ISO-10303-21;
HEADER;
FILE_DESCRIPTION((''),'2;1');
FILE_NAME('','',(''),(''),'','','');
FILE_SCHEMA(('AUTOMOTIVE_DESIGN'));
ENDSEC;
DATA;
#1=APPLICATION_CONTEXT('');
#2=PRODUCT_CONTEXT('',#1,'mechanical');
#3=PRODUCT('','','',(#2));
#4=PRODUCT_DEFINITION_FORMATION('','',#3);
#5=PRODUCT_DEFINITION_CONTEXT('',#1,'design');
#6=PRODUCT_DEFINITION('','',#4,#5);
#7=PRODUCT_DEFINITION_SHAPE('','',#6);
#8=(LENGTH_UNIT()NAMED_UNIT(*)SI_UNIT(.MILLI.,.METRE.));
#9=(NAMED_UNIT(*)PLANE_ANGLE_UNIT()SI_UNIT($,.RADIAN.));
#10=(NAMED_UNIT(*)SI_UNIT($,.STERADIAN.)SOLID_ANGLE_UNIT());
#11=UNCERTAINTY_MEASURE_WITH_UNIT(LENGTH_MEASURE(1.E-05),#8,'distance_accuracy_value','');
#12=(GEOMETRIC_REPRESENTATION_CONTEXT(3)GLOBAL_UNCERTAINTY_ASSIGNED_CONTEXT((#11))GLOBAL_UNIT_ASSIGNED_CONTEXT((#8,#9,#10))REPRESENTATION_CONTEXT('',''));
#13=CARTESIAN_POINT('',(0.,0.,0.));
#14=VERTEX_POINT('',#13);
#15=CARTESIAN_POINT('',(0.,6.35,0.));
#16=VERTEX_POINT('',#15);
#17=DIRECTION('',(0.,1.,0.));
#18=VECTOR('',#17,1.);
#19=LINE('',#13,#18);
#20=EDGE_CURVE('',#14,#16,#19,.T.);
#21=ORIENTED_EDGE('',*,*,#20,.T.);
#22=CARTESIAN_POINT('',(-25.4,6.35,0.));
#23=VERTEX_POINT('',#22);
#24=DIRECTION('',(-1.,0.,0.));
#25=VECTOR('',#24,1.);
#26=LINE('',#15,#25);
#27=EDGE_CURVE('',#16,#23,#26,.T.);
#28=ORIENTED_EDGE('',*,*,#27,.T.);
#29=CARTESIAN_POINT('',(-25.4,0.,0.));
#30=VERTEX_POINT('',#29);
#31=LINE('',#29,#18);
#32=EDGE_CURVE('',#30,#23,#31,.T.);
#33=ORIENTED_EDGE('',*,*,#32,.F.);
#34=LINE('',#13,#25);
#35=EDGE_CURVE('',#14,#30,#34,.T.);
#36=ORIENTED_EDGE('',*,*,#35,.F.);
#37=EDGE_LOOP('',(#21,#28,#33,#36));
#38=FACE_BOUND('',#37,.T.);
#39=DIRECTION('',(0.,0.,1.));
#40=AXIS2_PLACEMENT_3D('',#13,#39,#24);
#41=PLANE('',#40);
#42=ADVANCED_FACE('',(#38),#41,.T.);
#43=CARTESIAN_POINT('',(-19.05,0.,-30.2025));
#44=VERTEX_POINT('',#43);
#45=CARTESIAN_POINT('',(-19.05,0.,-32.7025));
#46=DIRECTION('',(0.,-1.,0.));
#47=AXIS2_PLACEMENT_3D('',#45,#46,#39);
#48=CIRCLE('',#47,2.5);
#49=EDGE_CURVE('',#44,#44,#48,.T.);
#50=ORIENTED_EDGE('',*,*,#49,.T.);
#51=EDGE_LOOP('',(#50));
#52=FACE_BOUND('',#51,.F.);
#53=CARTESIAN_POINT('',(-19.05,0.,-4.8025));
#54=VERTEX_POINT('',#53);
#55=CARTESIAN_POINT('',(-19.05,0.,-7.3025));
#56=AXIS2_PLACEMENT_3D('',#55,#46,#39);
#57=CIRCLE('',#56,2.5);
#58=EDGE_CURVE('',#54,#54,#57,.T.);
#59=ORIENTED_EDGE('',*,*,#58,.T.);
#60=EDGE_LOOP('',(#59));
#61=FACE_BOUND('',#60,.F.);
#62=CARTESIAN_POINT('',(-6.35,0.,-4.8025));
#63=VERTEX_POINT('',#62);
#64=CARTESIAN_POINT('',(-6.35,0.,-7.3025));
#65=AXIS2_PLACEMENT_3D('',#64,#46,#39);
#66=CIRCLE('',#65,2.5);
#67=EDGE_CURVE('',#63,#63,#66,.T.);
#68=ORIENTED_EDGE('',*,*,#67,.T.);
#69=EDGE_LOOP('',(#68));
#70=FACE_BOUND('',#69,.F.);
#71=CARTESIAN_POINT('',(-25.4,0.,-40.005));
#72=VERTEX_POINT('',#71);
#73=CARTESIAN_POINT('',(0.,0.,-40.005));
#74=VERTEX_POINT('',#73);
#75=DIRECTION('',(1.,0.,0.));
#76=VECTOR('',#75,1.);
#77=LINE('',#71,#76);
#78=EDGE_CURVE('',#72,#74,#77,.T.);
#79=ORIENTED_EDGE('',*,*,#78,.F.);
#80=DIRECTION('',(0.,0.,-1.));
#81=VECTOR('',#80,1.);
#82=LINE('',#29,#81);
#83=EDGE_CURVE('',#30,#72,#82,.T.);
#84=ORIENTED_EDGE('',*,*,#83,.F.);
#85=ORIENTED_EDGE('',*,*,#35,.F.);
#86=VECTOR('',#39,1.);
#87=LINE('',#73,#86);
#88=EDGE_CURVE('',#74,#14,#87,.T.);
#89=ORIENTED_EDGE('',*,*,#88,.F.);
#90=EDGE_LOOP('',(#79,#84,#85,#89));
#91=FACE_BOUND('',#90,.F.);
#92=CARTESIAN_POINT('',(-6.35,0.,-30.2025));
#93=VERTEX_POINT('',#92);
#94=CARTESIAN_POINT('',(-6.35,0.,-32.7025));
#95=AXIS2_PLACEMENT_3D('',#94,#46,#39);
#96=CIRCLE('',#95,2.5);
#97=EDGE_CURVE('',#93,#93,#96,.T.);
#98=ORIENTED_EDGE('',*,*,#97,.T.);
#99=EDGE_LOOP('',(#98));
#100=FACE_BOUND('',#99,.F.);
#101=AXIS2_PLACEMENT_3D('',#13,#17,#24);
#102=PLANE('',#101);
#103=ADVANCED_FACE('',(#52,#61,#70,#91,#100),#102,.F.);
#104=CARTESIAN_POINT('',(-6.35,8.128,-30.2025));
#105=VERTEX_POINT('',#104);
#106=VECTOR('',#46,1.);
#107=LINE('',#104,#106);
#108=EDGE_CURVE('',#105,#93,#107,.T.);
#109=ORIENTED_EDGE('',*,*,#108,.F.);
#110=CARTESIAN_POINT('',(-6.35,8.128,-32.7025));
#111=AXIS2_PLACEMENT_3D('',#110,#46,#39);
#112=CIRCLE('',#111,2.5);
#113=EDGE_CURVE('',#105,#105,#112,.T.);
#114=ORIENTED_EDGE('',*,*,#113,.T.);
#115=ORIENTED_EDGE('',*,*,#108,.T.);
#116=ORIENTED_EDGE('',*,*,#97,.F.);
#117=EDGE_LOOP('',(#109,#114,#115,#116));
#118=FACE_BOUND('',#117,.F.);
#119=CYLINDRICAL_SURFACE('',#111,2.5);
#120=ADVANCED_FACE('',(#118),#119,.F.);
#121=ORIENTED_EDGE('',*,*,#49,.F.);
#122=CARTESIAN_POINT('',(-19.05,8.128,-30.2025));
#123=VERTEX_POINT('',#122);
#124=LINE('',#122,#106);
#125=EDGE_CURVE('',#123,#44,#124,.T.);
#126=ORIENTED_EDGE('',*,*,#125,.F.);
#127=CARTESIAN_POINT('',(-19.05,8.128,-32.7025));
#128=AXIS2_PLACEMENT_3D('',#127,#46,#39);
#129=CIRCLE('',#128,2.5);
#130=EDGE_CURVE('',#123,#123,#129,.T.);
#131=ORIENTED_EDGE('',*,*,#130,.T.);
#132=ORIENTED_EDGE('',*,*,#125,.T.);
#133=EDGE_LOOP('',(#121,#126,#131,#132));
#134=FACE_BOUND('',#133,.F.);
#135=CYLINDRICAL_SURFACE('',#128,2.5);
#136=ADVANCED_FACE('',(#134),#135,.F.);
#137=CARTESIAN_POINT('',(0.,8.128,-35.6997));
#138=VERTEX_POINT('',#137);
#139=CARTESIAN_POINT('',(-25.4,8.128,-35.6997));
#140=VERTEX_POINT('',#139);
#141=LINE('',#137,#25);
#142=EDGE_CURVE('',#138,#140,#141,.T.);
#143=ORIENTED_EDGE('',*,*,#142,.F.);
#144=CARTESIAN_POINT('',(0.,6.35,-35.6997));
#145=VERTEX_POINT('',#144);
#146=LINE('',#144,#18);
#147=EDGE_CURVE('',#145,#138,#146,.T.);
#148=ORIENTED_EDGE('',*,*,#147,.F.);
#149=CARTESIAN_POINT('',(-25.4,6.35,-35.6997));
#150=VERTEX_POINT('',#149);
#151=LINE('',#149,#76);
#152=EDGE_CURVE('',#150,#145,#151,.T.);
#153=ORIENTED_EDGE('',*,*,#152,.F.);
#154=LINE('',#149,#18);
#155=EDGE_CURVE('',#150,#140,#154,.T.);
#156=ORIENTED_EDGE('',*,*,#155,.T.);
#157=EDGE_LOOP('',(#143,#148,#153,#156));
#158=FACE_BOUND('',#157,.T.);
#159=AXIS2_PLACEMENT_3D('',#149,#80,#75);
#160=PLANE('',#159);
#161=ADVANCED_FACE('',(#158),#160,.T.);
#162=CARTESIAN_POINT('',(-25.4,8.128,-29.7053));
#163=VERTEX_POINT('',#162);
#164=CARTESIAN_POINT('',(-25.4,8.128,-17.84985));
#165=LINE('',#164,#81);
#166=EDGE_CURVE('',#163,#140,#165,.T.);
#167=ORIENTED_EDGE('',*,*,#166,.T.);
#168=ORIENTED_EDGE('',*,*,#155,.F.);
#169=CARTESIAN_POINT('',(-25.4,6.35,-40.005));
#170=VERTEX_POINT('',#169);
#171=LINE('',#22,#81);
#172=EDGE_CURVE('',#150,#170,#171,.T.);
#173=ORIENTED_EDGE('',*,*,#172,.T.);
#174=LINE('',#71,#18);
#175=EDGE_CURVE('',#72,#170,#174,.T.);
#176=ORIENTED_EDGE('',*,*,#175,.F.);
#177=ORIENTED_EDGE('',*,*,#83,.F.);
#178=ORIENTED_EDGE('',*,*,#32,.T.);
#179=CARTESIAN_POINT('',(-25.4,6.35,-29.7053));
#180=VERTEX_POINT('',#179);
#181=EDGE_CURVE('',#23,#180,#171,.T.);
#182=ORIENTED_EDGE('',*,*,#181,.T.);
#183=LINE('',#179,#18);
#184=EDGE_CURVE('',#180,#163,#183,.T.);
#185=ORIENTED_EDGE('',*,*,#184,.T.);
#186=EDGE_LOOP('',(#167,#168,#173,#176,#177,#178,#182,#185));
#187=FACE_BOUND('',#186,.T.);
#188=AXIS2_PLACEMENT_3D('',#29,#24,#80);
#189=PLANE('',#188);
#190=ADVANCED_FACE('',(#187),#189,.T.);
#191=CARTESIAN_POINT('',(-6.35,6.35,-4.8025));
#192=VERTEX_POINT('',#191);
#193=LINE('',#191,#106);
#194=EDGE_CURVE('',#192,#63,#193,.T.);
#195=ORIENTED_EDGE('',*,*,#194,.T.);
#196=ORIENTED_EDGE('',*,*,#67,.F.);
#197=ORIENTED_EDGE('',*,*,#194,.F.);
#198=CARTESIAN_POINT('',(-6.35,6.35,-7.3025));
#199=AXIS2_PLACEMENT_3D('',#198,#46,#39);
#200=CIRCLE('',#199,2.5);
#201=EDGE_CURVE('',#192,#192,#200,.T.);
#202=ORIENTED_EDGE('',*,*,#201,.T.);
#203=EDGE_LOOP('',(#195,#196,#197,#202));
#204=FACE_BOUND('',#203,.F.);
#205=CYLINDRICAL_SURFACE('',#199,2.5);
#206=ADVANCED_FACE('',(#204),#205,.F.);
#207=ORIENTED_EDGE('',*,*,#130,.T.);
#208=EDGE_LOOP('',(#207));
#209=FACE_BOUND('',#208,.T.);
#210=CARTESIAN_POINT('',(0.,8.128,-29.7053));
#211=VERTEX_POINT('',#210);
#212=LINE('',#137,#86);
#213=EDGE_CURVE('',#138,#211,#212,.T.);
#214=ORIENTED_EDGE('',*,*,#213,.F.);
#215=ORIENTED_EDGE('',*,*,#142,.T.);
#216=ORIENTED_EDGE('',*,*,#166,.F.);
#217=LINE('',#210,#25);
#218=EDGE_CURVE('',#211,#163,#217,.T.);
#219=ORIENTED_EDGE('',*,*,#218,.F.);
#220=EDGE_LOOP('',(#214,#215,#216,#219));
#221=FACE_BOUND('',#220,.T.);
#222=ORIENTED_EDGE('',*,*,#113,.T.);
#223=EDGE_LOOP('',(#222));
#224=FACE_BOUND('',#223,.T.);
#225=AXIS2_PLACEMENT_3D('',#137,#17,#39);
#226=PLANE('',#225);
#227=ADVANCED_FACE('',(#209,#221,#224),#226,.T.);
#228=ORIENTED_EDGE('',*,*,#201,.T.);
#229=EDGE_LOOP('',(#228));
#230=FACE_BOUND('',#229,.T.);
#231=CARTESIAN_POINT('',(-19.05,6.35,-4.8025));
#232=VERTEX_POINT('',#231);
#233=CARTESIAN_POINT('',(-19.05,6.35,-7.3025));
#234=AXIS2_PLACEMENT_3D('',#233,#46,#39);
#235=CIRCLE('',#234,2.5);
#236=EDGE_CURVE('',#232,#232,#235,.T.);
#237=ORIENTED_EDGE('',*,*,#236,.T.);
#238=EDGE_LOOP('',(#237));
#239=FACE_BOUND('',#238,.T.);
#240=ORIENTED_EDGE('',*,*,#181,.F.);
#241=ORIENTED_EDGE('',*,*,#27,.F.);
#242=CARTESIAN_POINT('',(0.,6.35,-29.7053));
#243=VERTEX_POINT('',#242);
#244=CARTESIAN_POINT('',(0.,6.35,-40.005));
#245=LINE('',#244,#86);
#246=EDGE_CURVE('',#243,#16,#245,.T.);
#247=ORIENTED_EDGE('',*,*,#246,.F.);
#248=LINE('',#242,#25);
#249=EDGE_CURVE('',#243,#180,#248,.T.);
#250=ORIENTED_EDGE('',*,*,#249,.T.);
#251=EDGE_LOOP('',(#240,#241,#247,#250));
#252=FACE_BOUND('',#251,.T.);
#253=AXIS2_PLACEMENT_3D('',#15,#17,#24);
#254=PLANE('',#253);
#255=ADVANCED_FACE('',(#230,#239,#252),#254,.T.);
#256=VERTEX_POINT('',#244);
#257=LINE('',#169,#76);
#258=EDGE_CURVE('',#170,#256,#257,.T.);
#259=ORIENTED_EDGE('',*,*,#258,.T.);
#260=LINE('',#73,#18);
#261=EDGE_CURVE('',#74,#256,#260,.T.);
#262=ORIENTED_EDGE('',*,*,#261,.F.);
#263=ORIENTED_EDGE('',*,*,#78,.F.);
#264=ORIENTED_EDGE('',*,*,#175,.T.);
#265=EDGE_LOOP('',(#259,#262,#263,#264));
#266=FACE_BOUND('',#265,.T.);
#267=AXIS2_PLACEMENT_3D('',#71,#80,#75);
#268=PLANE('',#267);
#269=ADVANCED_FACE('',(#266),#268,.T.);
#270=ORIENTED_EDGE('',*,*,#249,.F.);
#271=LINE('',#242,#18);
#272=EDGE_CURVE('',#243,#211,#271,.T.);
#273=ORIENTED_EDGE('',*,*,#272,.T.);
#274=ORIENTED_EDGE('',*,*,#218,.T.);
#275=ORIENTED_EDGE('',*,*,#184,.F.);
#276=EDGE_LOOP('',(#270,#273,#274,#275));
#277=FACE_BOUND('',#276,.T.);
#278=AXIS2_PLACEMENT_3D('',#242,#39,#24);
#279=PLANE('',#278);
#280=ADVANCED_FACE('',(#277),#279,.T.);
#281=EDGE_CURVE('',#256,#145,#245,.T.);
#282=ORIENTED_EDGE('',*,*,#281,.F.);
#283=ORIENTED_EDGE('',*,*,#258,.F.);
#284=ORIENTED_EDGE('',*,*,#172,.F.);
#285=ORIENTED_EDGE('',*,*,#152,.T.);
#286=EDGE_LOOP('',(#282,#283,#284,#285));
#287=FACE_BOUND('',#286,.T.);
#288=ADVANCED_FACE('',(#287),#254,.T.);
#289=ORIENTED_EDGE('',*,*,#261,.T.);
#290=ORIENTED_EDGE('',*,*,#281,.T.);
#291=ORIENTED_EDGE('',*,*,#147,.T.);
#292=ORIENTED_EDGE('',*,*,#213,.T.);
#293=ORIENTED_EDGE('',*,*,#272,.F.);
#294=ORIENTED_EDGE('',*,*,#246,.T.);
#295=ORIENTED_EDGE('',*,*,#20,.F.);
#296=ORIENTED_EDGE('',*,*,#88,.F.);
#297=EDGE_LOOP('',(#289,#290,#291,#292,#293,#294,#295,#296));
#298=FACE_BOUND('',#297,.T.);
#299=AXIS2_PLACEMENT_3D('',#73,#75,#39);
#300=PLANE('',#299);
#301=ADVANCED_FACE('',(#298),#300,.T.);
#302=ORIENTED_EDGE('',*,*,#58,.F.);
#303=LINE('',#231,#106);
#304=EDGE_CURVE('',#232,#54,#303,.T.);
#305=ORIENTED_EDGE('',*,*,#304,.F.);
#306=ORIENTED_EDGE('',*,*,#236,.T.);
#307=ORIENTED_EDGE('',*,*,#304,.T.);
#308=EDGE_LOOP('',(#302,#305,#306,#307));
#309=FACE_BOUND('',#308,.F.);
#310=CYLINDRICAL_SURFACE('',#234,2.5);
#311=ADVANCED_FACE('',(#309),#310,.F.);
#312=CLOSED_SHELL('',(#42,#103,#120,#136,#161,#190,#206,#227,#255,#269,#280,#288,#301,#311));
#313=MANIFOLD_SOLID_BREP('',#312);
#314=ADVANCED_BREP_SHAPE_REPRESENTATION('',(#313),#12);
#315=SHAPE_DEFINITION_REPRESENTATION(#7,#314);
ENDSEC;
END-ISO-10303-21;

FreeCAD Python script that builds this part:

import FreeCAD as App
import Part
import Sketcher
from FreeCAD import Vector
Q = App.Units.Quantity

doc = App.newDocument("Part")
body = doc.addObject("PartDesign::Body", "Body")

sketch1 = body.newObject("Sketcher::SketchObject", "Sketch")
sketch1.AttachmentSupport = (doc.getObject("XZ_Plane"), [""])
sketch1.MapMode = "FlatFace"
sketch1.addGeometry(Part.LineSegment(Vector(-25, 0, 0), Vector(0, 0, 0)), False)
sketch1.addGeometry(Part.LineSegment(Vector(0, 0, 0), Vector(0, -40, 0)), False)
sketch1.addGeometry(Part.LineSegment(Vector(0, -40, 0), Vector(-25, -40, 0)), False)
sketch1.addGeometry(Part.LineSegment(Vector(-25, -40, 0), Vector(-25, 0, 0)), False)
sketch1.addConstraint(Sketcher.Constraint("Coincident", 0, 2, 1, 1))
sketch1.addConstraint(Sketcher.Constraint("Coincident", 1, 2, 2, 1))
sketch1.addConstraint(Sketcher.Constraint("Coincident", 2, 2, 3, 1))
sketch1.addConstraint(Sketcher.Constraint("Coincident", 3, 2, 0, 1))
sketch1.addConstraint(Sketcher.Constraint("Horizontal", 0))
sketch1.addConstraint(Sketcher.Constraint("Vertical", 1))
sketch1.addConstraint(Sketcher.Constraint("Horizontal", 2))
sketch1.addConstraint(Sketcher.Constraint("Vertical", 3))
sketch1.addConstraint(Sketcher.Constraint("Coincident", 0, 2, -1, 1))
sketch1.addConstraint(Sketcher.Constraint("DistanceX", 0, 1, 0, 2, Q("1 in")))
sketch1.addConstraint(Sketcher.Constraint("DistanceY", 1, 2, 1, 1, Q("1.575 in")))
pad1 = body.newObject("PartDesign::Pad", "Pad")
pad1.Profile = sketch1
pad1.Length = Q("0.25 in")
pad1.Reversed = True

sketch2 = body.newObject("Sketcher::SketchObject", "Sketch001")
sketch2.AttachmentSupport = (doc.getObject("XZ_Plane"), [""])
sketch2.MapMode = "FlatFace"
sketch2.AttachmentOffset = App.Placement(Vector(0, 0, -0.25 * 25.4), App.Rotation())
sketch2.addGeometry(Part.LineSegment(Vector(0, -36, 0), Vector(-25, -36, 0)), False)
sketch2.addGeometry(Part.LineSegment(Vector(-25, -36, 0), Vector(-25, -30, 0)), False)
sketch2.addGeometry(Part.LineSegment(Vector(-25, -30, 0), Vector(0, -30, 0)), False)
sketch2.addGeometry(Part.LineSegment(Vector(0, -30, 0), Vector(0, -36, 0)), False)
sketch2.addConstraint(Sketcher.Constraint("Coincident", 0, 2, 1, 1))
sketch2.addConstraint(Sketcher.Constraint("Coincident", 1, 2, 2, 1))
sketch2.addConstraint(Sketcher.Constraint("Coincident", 2, 2, 3, 1))
sketch2.addConstraint(Sketcher.Constraint("Coincident", 3, 2, 0, 1))
sketch2.addConstraint(Sketcher.Constraint("Horizontal", 0))
sketch2.addConstraint(Sketcher.Constraint("Vertical", 1))
sketch2.addConstraint(Sketcher.Constraint("Horizontal", 2))
sketch2.addConstraint(Sketcher.Constraint("Vertical", 3))
sketch2.addConstraint(Sketcher.Constraint("PointOnObject", 2, 2, -2))
sketch2.addConstraint(Sketcher.Constraint("DistanceX", 0, 2, 0, 1, Q("1 in")))
sketch2.addConstraint(Sketcher.Constraint("DistanceY", 1, 1, 1, 2, Q("0.236 in")))
sketch2.addConstraint(Sketcher.Constraint("DistanceY", 0, 2, -1, 1, Q("1.4055 in")))
pad2 = body.newObject("PartDesign::Pad", "Pad001")
pad2.Profile = sketch2
pad2.Length = Q("0.225 in")
pad2.Reversed = True

sketch3 = body.newObject("Sketcher::SketchObject", "Sketch002")
sketch3.AttachmentSupport = (doc.getObject("XZ_Plane"), [""])
sketch3.MapMode = "FlatFace"
sketch3.AttachmentOffset = App.Placement(Vector(0, 0, -0.25 * 25.4), App.Rotation())
sketch3.addGeometry(Part.Circle(Vector(-19.1, -7.3, 0), Vector(0, 0, 1), 2.5), False)
sketch3.addGeometry(Part.Circle(Vector(-6.3, -7.3, 0), Vector(0, 0, 1), 2.5), False)
sketch3.addConstraint(Sketcher.Constraint("Equal", 0, 1))
sketch3.addConstraint(Sketcher.Constraint("Horizontal", 0, 3, 1, 3))
sketch3.addConstraint(Sketcher.Constraint("DistanceX", 0, 3, 1, 3, Q("0.5 in")))
sketch3.addConstraint(Sketcher.Constraint("Diameter", 0, Q("5 mm")))
sketch3.addConstraint(Sketcher.Constraint("DistanceX", 0, 3, -1, 1, Q("0.75 in")))
sketch3.addConstraint(Sketcher.Constraint("DistanceY", 0, 3, -1, 1, Q("0.2875 in")))
doc.recompute()
hole = body.newObject("PartDesign::Hole", "Hole")
hole.Profile = sketch3
hole.ThreadType = "None"
hole.Diameter = 5
hole.DepthType = "ThroughAll"
hole.Reversed = True

sketch4 = body.newObject("Sketcher::SketchObject", "Sketch003")
sketch4.AttachmentSupport = (doc.getObject("YZ_Plane"), [""])
sketch4.MapMode = "FlatFace"
sketch4.addGeometry(Part.LineSegment(Vector(12.1, -35.7, 0), Vector(12.1, -29.7, 0)), False)
sketch4.addGeometry(Part.LineSegment(Vector(12.1, -29.7, 0), Vector(8.1, -29.7, 0)), False)
sketch4.addGeometry(Part.LineSegment(Vector(8.1, -29.7, 0), Vector(8.1, -35.7, 0)), False)
sketch4.addGeometry(Part.LineSegment(Vector(8.1, -35.7, 0), Vector(12.1, -35.7, 0)), False)
sketch4.addConstraint(Sketcher.Constraint("Coincident", 0, 2, 1, 1))
sketch4.addConstraint(Sketcher.Constraint("Coincident", 1, 2, 2, 1))
sketch4.addConstraint(Sketcher.Constraint("Coincident", 2, 2, 3, 1))
sketch4.addConstraint(Sketcher.Constraint("Coincident", 3, 2, 0, 1))
sketch4.addConstraint(Sketcher.Constraint("Vertical", 0))
sketch4.addConstraint(Sketcher.Constraint("Horizontal", 1))
sketch4.addConstraint(Sketcher.Constraint("Vertical", 2))
sketch4.addConstraint(Sketcher.Constraint("Horizontal", 3))
sketch4.addConstraint(Sketcher.Constraint("DistanceX", 1, 2, 1, 1, Q("0.155 in")))
sketch4.addConstraint(Sketcher.Constraint("DistanceY", 0, 1, 0, 2, Q("0.236 in")))
sketch4.addConstraint(Sketcher.Constraint("DistanceX", -1, 1, 1, 2, Q("0.32 in")))
sketch4.addConstraint(Sketcher.Constraint("DistanceY", 0, 2, -1, 1, Q("1.1695 in")))
pocket1 = body.newObject("PartDesign::Pocket", "Pocket")
pocket1.Profile = sketch4
pocket1.Type = "ThroughAll"

sketch5 = body.newObject("Sketcher::SketchObject", "Sketch004")
sketch5.AttachmentSupport = (doc.getObject("XZ_Plane"), [""])
sketch5.MapMode = "FlatFace"
sketch5.AttachmentOffset = App.Placement(Vector(0, 0, -0.32 * 25.4), App.Rotation())
sketch5.addGeometry(Part.Circle(Vector(-6.3, -32.7, 0), Vector(0, 0, 1), 2.5), False)
sketch5.addGeometry(Part.Circle(Vector(-19.1, -32.7, 0), Vector(0, 0, 1), 2.5), False)
sketch5.addConstraint(Sketcher.Constraint("Equal", 0, 1))
sketch5.addConstraint(Sketcher.Constraint("Horizontal", 0, 3, 1, 3))
sketch5.addConstraint(Sketcher.Constraint("DistanceX", 1, 3, 0, 3, Q("0.5 in")))
sketch5.addConstraint(Sketcher.Constraint("Diameter", 0, Q("5 mm")))
sketch5.addConstraint(Sketcher.Constraint("DistanceX", 0, 3, -1, 1, Q("0.25 in")))
sketch5.addConstraint(Sketcher.Constraint("DistanceY", 0, 3, -1, 1, Q("1.2875 in")))
doc.recompute()
hole2 = body.newObject("PartDesign::Hole", "Hole001")
hole2.Profile = sketch5
hole2.ThreadType = "None"
hole2.Diameter = 5
hole2.DepthType = "ThroughAll"
hole2.Reversed = True

doc.recompute()
